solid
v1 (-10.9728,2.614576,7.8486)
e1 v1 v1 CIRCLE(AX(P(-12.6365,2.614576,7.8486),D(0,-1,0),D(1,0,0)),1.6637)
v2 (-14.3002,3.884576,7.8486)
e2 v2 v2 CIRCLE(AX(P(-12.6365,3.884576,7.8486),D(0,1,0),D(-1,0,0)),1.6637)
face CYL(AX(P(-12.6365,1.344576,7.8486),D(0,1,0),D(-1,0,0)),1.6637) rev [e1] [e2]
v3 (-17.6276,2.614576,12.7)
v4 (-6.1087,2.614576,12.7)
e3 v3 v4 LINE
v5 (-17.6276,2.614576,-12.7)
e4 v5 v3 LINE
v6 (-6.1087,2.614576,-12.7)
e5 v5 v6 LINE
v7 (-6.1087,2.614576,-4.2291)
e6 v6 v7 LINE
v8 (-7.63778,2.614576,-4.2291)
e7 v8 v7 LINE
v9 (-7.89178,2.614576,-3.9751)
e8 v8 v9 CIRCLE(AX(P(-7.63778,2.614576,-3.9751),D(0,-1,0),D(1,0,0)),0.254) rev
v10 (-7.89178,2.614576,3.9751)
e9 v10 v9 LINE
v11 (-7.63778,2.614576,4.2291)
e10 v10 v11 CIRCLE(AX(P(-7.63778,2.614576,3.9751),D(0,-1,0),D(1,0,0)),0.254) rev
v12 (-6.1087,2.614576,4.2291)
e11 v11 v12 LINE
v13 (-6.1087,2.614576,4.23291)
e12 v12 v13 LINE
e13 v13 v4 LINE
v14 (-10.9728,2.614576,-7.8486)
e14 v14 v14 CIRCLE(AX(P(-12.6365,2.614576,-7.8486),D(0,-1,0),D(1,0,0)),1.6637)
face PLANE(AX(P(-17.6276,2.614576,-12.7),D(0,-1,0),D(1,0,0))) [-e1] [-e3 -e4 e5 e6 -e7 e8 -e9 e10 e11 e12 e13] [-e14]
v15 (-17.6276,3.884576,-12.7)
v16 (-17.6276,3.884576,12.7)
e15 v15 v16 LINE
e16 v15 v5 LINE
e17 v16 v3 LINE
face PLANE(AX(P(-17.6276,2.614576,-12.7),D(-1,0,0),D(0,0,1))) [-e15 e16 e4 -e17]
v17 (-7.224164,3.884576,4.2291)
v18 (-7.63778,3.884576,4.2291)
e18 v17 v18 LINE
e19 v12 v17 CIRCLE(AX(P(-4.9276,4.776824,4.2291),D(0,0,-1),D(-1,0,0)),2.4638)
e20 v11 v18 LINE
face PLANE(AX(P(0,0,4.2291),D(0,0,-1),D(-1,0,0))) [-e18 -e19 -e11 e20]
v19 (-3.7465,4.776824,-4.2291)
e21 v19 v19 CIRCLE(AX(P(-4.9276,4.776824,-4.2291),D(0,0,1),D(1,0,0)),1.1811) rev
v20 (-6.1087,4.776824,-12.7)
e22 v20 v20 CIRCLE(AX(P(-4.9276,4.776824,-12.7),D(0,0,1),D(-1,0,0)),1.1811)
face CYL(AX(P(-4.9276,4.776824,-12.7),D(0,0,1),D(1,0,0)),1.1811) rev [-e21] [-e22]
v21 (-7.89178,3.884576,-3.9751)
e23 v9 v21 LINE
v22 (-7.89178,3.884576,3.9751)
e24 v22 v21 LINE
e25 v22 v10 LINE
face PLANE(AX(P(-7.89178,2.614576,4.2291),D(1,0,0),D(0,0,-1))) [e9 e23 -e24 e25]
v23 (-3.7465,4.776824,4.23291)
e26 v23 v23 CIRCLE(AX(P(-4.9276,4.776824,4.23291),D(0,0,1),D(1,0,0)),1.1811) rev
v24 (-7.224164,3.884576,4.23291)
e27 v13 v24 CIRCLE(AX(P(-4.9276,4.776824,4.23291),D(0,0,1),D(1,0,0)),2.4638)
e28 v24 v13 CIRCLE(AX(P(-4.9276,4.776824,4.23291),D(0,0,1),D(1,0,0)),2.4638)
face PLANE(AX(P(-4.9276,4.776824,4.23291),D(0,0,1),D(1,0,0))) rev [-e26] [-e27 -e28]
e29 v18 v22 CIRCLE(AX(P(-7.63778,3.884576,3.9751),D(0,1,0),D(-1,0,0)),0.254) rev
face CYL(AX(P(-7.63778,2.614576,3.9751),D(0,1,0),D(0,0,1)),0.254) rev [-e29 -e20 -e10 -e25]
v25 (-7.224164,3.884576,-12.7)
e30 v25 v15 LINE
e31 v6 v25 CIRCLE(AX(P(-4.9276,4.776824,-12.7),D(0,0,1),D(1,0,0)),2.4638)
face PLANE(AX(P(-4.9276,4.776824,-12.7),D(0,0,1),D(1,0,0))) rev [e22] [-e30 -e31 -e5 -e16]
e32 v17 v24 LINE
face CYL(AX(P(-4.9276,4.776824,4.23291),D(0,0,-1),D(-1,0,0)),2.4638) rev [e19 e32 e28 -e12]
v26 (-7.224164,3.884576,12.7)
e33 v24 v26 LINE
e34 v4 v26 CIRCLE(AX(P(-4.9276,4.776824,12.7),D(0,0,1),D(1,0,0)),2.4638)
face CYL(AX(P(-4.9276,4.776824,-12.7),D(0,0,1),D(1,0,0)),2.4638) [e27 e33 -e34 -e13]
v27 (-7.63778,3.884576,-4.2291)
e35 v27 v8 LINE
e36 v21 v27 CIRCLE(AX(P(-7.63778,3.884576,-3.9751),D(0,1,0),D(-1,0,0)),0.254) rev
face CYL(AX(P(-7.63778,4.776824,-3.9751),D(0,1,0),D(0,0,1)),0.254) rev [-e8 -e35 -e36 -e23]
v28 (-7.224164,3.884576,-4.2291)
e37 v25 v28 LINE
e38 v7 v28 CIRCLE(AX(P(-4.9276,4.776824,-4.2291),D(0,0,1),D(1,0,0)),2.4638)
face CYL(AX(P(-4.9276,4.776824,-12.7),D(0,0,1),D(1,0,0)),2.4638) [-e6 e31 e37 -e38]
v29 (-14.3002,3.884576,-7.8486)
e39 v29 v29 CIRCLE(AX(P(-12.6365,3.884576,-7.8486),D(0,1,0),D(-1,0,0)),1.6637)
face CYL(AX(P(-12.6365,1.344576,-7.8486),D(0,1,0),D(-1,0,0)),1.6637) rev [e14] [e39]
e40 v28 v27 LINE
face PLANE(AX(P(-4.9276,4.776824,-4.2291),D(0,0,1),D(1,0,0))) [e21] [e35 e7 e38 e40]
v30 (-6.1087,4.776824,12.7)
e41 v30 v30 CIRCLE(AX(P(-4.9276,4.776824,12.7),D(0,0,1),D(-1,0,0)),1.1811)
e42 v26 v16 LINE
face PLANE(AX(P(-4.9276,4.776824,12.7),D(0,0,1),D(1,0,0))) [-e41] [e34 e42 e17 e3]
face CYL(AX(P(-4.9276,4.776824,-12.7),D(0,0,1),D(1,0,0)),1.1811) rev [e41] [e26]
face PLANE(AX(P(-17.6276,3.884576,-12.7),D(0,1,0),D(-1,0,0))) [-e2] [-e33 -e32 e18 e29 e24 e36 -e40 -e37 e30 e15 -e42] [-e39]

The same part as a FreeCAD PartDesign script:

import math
import FreeCAD as App
import Part
import Sketcher
from FreeCAD import Vector
Q = App.Units.Quantity


def edges_at(feature, points):
    """Names of the edges that pass closest to the given points."""
    edges = feature.Shape.Edges
    near = lambda p: min(range(len(edges)), key=lambda i: edges[i].distToShape(Part.Vertex(*p))[0])
    return sorted({f"Edge{near(p) + 1}" for p in points})

doc = App.newDocument("Part")
body = doc.addObject("PartDesign::Body", "Body")

sketch1 = body.newObject("Sketcher::SketchObject", "Sketch")
sketch1.AttachmentSupport = (doc.getObject("XY_Plane"), [""])
sketch1.MapMode = "FlatFace"
sketch1.addGeometry(Part.LineSegment(Vector(-17.6, 3.9, 0), Vector(-17.6, 2.6, 0)), False)
sketch1.addGeometry(Part.LineSegment(Vector(-17.6, 2.6, 0), Vector(-6.1, 2.6, 0)), False)
sketch1.addGeometry(Part.ArcOfCircle(Part.Circle(Vector(-4.9, 4.8, 0), Vector(0, 0, 1), 2.5), math.radians(-119), math.radians(201)), False)
sketch1.addGeometry(Part.LineSegment(Vector(-7.2, 3.9, 0), Vector(-17.6, 3.9, 0)), False)
sketch1.addGeometry(Part.Circle(Vector(-4.9, 4.8, 0), Vector(0, 0, 1), 1.2), False)
sketch1.addConstraint(Sketcher.Constraint("Coincident", 0, 2, 1, 1))
sketch1.addConstraint(Sketcher.Constraint("Coincident", 1, 2, 2, 1))
sketch1.addConstraint(Sketcher.Constraint("Coincident", 2, 2, 3, 1))
sketch1.addConstraint(Sketcher.Constraint("Coincident", 3, 2, 0, 1))
sketch1.addConstraint(Sketcher.Constraint("Vertical", 0))
sketch1.addConstraint(Sketcher.Constraint("Horizontal", 1))
sketch1.addConstraint(Sketcher.Constraint("Horizontal", 3))
sketch1.addConstraint(Sketcher.Constraint("Coincident", 4, 3, 2, 3))
sketch1.addConstraint(Sketcher.Constraint("Diameter", 4, Q("0.093 in")))
sketch1.addConstraint(Sketcher.Constraint("Radius", 2, Q("0.097 in")))
sketch1.addConstraint(Sketcher.Constraint("DistanceY", 0, 2, 0, 1, Q("0.05 in")))
sketch1.addConstraint(Sketcher.Constraint("DistanceX", 0, 2, 2, 3, Q("0.5 in")))
sketch1.addConstraint(Sketcher.Constraint("DistanceX", 1, 1, 1, 2, Q("0.4535 in")))
sketch1.addConstraint(Sketcher.Constraint("DistanceX", 2, 3, -1, 1, Q("0.194 in")))
sketch1.addConstraint(Sketcher.Constraint("DistanceY", -1, 1, 2, 3, 4.776824))
pad1 = body.newObject("PartDesign::Pad", "Pad")
pad1.Profile = sketch1
pad1.Type = "TwoLengths"
pad1.Length = Q("0.5 in")
pad1.Length2 = Q("0.5 in")

sketch2 = body.newObject("Sketcher::SketchObject", "Sketch001")
sketch2.AttachmentSupport = (doc.getObject("XY_Plane"), [""])
sketch2.MapMode = "FlatFace"
sketch2.addGeometry(Part.Circle(Vector(-4.9, 4.8, 0), Vector(0, 0, 1), 2.5), False)
sketch2.addConstraint(Sketcher.Constraint("Diameter", 0, Q("0.194 in")))
sketch2.addConstraint(Sketcher.Constraint("DistanceX", 0, 3, -1, 1, Q("0.194 in")))
sketch2.addConstraint(Sketcher.Constraint("DistanceY", -1, 1, 0, 3, 4.776824))
pocket1 = body.newObject("PartDesign::Pocket", "Pocket")
pocket1.Profile = sketch2
pocket1.Type = "TwoLengths"
pocket1.Length = 4.23291
pocket1.Length2 = Q("0.1665 in")
pocket1.Reversed = True

sketch3 = body.newObject("Sketcher::SketchObject", "Sketch002")
sketch3.AttachmentSupport = (doc.getObject("XY_Plane"), [""])
sketch3.MapMode = "FlatFace"
sketch3.addGeometry(Part.LineSegment(Vector(-7.9, 4.9, 0), Vector(-7.9, 2.6, 0)), False)
sketch3.addGeometry(Part.LineSegment(Vector(-7.9, 2.6, 0), Vector(-5, 2.6, 0)), False)
sketch3.addGeometry(Part.LineSegment(Vector(-5, 2.6, 0), Vector(-5, 4.9, 0)), False)
sketch3.addGeometry(Part.LineSegment(Vector(-5, 4.9, 0), Vector(-7.9, 4.9, 0)), False)
sketch3.addConstraint(Sketcher.Constraint("Coincident", 0, 2, 1, 1))
sketch3.addConstraint(Sketcher.Constraint("Coincident", 1, 2, 2, 1))
sketch3.addConstraint(Sketcher.Constraint("Coincident", 2, 2, 3, 1))
sketch3.addConstraint(Sketcher.Constraint("Coincident", 3, 2, 0, 1))
sketch3.addConstraint(Sketcher.Constraint("Vertical", 0))
sketch3.addConstraint(Sketcher.Constraint("Horizontal", 1))
sketch3.addConstraint(Sketcher.Constraint("Vertical", 2))
sketch3.addConstraint(Sketcher.Constraint("Horizontal", 3))
sketch3.addConstraint(Sketcher.Constraint("DistanceX", 0, 2, -1, 1, Q("0.3107 in")))
sketch3.addConstraint(Sketcher.Constraint("DistanceX", 1, 1, 1, 2, 2.905794))
sketch3.addConstraint(Sketcher.Constraint("DistanceY", 0, 2, 0, 1, 2.259273))
sketch3.addConstraint(Sketcher.Constraint("DistanceY", -1, 1, 2, 2, 4.873849))
pocket2 = body.newObject("PartDesign::Pocket", "Pocket001")
pocket2.Profile = sketch3
pocket2.Type = "TwoLengths"
pocket2.Length = Q("0.1665 in")
pocket2.Length2 = Q("0.1665 in")
pocket2.Reversed = True
doc.recompute()

fillet = body.newObject("PartDesign::Fillet", "Fillet")
fillet.Base = (pocket2, edges_at(pocket2, [(-7.892, 3.25, -4.229)]))
fillet.Radius = Q("0.01 in")
doc.recompute()

fillet2 = body.newObject("PartDesign::Fillet", "Fillet001")
fillet2.Base = (fillet, edges_at(fillet, [(-7.892, 3.25, 4.229)]))
fillet2.Radius = Q("0.01 in")

sketch4 = body.newObject("Sketcher::SketchObject", "Sketch003")
sketch4.AttachmentSupport = (doc.getObject("XZ_Plane"), [""])
sketch4.MapMode = "FlatFace"
sketch4.AttachmentOffset = App.Placement(Vector(0, 0, -3.884576), App.Rotation())
sketch4.addGeometry(Part.Circle(Vector(-12.6, -7.8, 0), Vector(0, 0, 1), 1.7), False)
sketch4.addGeometry(Part.Circle(Vector(-12.6, 7.8, 0), Vector(0, 0, 1), 1.7), False)
sketch4.addConstraint(Sketcher.Constraint("Equal", 0, 1))
sketch4.addConstraint(Sketcher.Constraint("Symmetric", 0, 3, 1, 3, -1))
sketch4.addConstraint(Sketcher.Constraint("Diameter", 0, Q("0.131 in")))
sketch4.addConstraint(Sketcher.Constraint("DistanceY", 0, 3, -1, 1, Q("0.309 in")))
sketch4.addConstraint(Sketcher.Constraint("DistanceX", 0, 3, -1, 1, Q("0.4975 in")))
pocket3 = body.newObject("PartDesign::Pocket", "Pocket002")
pocket3.Profile = sketch4
pocket3.Length = Q("0.1 in")
pocket3.Reversed = True

doc.recompute()
